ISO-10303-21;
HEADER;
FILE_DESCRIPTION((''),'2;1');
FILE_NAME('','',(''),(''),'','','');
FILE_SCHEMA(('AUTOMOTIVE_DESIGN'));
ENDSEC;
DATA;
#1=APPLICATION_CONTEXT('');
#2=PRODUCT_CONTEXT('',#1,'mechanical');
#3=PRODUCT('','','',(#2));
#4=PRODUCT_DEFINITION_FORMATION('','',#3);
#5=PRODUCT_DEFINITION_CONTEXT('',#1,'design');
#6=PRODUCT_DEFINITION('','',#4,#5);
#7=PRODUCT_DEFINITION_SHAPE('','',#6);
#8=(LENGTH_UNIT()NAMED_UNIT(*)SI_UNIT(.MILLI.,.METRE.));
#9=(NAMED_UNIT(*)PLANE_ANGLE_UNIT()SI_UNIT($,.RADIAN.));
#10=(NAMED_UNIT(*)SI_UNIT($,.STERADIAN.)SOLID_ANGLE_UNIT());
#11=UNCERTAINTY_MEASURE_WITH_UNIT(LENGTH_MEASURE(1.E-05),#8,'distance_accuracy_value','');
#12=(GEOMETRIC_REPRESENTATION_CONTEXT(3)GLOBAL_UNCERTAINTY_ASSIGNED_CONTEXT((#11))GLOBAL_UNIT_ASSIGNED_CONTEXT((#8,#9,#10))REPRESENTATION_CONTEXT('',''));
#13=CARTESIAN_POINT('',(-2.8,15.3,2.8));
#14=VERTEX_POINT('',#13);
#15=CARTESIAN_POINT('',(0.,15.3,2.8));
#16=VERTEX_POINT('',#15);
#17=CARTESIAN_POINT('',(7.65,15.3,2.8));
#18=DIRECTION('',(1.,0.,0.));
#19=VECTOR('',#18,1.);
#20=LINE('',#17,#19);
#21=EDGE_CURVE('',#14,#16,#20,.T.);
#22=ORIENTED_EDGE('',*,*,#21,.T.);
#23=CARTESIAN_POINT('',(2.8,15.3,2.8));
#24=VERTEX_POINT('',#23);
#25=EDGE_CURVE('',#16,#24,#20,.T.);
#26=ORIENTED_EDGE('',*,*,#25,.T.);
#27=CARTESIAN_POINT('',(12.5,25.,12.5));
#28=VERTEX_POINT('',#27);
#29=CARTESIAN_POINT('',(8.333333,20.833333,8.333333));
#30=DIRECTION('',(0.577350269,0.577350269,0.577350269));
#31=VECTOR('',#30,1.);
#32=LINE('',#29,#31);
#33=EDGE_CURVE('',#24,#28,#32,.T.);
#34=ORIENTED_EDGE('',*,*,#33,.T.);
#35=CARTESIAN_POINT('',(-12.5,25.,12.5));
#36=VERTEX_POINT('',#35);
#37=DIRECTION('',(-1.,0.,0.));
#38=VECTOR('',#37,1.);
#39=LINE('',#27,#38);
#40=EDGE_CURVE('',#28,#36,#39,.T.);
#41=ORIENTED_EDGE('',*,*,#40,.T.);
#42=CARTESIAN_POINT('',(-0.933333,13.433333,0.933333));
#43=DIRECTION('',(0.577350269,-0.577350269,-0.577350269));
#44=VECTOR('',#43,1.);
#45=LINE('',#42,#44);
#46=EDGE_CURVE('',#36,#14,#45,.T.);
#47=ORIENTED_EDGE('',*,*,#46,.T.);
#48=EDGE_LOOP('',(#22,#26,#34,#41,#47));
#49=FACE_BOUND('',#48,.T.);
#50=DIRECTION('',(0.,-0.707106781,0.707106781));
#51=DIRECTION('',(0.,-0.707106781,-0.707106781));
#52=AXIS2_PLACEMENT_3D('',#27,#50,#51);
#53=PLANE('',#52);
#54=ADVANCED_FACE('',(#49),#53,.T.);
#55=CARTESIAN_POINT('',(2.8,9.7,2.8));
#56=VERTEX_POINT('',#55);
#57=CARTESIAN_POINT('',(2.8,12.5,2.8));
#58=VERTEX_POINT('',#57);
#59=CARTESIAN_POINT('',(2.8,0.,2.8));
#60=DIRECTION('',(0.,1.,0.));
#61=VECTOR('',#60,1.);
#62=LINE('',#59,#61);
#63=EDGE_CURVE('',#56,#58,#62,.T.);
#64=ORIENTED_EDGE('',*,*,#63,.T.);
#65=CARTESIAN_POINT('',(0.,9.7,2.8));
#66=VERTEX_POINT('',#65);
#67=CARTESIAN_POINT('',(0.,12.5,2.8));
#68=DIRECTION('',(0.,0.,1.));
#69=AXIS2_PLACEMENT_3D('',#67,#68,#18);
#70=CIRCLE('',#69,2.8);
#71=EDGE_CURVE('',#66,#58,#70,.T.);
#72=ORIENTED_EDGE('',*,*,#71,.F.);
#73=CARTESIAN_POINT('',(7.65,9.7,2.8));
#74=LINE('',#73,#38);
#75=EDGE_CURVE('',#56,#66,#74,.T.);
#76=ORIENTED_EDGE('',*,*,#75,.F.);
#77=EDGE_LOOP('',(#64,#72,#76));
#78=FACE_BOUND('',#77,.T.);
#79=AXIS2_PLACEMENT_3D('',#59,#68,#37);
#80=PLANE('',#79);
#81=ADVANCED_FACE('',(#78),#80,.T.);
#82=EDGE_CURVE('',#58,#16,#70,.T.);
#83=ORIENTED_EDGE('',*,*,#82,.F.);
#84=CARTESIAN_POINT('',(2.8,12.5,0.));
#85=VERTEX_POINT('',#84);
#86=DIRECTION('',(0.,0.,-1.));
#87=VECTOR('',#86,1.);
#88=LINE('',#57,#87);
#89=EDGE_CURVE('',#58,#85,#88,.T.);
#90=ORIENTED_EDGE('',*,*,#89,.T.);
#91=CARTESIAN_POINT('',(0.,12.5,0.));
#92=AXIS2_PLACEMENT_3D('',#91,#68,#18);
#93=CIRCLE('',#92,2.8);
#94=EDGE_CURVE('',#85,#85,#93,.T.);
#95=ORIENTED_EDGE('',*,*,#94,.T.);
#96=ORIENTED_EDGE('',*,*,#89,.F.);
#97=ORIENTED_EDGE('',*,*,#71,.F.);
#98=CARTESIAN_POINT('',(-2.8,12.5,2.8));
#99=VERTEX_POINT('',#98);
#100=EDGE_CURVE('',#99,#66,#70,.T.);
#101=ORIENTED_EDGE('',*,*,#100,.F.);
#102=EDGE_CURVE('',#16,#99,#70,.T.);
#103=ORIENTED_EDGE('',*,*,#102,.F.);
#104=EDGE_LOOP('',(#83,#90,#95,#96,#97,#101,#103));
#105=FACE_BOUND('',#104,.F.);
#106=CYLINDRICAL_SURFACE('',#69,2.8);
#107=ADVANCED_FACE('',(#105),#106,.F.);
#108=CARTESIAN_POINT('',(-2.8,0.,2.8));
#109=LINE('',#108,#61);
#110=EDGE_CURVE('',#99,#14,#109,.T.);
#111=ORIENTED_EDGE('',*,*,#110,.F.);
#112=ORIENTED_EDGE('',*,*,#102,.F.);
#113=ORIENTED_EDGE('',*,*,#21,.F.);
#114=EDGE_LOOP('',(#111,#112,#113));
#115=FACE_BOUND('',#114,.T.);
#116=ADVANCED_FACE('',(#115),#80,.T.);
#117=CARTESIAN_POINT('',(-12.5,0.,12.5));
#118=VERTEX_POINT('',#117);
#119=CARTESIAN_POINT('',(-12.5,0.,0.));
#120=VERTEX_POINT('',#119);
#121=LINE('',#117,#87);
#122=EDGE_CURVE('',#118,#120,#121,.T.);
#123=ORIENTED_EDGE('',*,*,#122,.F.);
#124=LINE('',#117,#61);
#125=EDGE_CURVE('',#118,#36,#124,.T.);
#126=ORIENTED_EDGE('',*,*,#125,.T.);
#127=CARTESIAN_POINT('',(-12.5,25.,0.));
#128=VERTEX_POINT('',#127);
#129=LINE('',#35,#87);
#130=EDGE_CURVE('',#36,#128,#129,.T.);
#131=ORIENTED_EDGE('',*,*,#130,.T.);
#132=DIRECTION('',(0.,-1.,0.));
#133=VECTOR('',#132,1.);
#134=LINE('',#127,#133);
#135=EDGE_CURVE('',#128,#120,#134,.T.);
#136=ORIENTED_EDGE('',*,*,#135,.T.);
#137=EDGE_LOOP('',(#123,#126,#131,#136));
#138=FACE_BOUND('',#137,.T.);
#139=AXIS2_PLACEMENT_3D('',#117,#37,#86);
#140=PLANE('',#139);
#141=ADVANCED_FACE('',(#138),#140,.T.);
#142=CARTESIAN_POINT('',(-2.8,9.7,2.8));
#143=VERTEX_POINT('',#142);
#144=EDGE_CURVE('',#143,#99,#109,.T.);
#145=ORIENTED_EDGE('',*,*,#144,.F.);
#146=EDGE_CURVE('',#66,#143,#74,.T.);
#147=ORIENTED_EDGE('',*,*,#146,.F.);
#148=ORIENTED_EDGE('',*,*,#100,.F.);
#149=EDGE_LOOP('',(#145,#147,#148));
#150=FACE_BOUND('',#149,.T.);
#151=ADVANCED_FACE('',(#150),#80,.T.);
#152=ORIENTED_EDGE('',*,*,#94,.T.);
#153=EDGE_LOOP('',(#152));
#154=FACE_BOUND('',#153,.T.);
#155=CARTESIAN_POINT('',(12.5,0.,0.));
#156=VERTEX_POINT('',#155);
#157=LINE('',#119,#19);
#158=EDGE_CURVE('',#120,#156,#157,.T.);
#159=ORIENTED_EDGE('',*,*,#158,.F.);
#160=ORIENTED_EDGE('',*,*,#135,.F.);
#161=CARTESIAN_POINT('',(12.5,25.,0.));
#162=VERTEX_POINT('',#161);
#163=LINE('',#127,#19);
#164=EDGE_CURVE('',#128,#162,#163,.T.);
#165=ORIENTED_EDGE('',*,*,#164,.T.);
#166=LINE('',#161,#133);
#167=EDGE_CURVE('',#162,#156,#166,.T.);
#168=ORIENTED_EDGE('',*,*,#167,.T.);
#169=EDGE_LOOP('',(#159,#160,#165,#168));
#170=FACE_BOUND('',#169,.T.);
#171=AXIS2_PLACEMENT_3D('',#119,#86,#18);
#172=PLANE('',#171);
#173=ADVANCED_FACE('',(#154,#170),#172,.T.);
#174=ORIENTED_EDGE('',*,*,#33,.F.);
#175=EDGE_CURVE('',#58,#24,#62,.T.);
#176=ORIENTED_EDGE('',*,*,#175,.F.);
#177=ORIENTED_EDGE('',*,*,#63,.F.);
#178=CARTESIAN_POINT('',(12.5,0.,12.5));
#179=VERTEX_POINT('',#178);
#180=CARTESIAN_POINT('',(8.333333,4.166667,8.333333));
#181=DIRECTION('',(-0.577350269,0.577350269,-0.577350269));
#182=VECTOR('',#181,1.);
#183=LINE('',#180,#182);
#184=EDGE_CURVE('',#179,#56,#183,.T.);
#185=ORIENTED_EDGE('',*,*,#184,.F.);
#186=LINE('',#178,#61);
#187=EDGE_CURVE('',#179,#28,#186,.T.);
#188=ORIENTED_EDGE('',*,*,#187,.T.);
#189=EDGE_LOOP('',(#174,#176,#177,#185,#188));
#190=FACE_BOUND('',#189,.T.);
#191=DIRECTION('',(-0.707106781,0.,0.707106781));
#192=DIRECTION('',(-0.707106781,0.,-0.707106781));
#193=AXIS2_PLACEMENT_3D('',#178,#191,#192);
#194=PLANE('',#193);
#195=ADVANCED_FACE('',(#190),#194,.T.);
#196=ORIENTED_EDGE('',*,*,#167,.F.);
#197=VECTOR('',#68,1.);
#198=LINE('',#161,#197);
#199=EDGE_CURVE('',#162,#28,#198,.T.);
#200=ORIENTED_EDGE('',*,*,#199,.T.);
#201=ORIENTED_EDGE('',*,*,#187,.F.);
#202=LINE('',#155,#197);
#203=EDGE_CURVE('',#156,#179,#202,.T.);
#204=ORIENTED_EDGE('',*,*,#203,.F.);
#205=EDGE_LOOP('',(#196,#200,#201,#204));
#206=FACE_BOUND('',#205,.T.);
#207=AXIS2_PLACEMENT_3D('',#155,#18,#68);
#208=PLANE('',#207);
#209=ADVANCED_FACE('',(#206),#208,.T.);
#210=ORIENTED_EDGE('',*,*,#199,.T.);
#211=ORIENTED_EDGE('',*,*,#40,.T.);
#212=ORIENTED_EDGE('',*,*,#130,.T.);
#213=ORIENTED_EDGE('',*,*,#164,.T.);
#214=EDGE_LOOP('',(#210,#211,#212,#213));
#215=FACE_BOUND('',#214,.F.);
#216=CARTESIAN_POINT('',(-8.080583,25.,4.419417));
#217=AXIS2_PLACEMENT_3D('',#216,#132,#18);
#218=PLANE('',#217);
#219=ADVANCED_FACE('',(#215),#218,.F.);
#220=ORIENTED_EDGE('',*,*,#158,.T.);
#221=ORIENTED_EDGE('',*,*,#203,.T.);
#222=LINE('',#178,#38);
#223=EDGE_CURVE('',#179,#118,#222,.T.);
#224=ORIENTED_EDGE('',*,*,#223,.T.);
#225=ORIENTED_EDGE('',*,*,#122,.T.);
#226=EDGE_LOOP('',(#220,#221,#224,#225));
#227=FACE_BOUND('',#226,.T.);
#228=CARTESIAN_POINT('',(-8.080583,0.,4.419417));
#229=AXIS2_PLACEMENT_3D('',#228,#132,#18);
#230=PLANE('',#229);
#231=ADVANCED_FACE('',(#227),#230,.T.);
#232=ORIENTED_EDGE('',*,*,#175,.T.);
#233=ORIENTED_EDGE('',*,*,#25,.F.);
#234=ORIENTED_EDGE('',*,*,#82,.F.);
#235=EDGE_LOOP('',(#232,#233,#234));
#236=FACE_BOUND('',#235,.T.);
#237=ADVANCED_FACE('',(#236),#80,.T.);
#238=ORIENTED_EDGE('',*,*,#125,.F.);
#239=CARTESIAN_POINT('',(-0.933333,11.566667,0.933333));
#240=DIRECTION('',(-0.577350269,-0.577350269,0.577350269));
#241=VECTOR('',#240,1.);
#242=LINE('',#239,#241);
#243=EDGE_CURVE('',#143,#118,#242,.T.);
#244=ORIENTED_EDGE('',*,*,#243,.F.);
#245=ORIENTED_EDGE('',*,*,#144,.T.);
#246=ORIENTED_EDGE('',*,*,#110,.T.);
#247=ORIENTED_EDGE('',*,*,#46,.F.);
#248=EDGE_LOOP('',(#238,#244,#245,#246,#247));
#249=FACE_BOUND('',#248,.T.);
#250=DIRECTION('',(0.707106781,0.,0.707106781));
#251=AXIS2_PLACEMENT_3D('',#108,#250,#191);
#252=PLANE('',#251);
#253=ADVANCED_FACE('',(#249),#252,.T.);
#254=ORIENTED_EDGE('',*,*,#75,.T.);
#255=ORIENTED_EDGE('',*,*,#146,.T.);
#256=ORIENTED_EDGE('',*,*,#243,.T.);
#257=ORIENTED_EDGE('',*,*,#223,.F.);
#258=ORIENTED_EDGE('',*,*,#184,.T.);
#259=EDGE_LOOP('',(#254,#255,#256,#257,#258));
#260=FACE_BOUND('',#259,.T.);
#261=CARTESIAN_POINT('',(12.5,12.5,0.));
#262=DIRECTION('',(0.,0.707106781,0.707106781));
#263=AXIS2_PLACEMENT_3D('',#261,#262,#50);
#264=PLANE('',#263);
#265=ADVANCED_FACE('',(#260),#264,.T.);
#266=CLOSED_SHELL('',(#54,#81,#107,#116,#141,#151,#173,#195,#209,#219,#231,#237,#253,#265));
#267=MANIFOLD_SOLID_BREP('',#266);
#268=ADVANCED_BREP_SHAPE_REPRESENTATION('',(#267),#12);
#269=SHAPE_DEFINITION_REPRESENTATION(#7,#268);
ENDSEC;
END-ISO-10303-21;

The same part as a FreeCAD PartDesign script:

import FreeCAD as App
import Part
import Sketcher
Q = App.Units.Quantity


def add_polygon(sketch, points):
    """Adds a closed chain of lines whose ends are joined by coincident constraints."""
    first, n = sketch.GeometryCount, len(points)
    for a, b in zip(points, points[1:] + points[:1]):
        sketch.addGeometry(Part.LineSegment(App.Vector(*a, 0), App.Vector(*b, 0)), False)
    for i in range(n):
        sketch.addConstraint(Sketcher.Constraint("Coincident", first + i, 2, first + (i + 1) % n, 1))

doc = App.newDocument("Part")
body = doc.addObject("PartDesign::Body", "Body")

sketch1 = doc.addObject("Sketcher::SketchObject", "Sketch")
body.addObject(sketch1)
sketch1.AttachmentSupport = (doc.XZ_Plane, [""])
sketch1.MapMode = "FlatFace"
add_polygon(sketch1, [(-12, 12), (-12, 0), (12, 0), (12, 12), (3, 3), (-3, 3)])
sketch1.addConstraint(Sketcher.Constraint("Vertical", 0))
sketch1.addConstraint(Sketcher.Constraint("Horizontal", 1))
sketch1.addConstraint(Sketcher.Constraint("Vertical", 2))
sketch1.addConstraint(Sketcher.Constraint("Horizontal", 4))
sketch1.addConstraint(Sketcher.Constraint("Symmetric", 0, 2, 1, 2, -1, 1))
sketch1.addConstraint(Sketcher.Constraint("Perpendicular", 3, 5))
sketch1.addConstraint(Sketcher.Constraint("Horizontal", 2, 2, 5, 2))
sketch1.addConstraint(Sketcher.Constraint("Equal", 3, 5))
sketch1.addConstraint(Sketcher.Constraint("DistanceX", 1, 1, 1, 2, Q("25 mm")))
sketch1.addConstraint(Sketcher.Constraint("DistanceX", 4, 2, 4, 1, Q("5.6 mm")))
sketch1.addConstraint(Sketcher.Constraint("DistanceY", 0, 2, 0, 1, Q("12.5 mm")))
pad1 = doc.addObject("PartDesign::Pad", "Pad")
body.addObject(pad1)
pad1.Profile = sketch1
pad1.Length = 25
pad1.Reversed = True

sketch2 = doc.addObject("Sketcher::SketchObject", "Sketch001")
body.addObject(sketch2)
sketch2.AttachmentSupport = (doc.YZ_Plane, [""])
sketch2.MapMode = "FlatFace"
sketch2.AttachmentOffset = App.Placement(App.Vector(0, 0, 12.5), App.Rotation())
add_polygon(sketch2, [(0, 0), (12, 0), (0, 12)])
add_polygon(sketch2, [(25, 12), (12, 0), (25, 0)])
sketch2.addConstraint(Sketcher.Constraint("Horizontal", 0))
sketch2.addConstraint(Sketcher.Constraint("Vertical", 2))
sketch2.addConstraint(Sketcher.Constraint("Horizontal", 4))
sketch2.addConstraint(Sketcher.Constraint("Vertical", 5))
sketch2.addConstraint(Sketcher.Constraint("Coincident", 2, 2, -1, 1))
sketch2.addConstraint(Sketcher.Constraint("Coincident", 3, 2, 0, 2))
sketch2.addConstraint(Sketcher.Constraint("Perpendicular", 1, 3))
sketch2.addConstraint(Sketcher.Constraint("Horizontal", 1, 2, 5, 2))
sketch2.addConstraint(Sketcher.Constraint("Equal", 0, 4))
sketch2.addConstraint(Sketcher.Constraint("DistanceX", 0, 1, 0, 2, Q("12.5 mm")))
pad2 = doc.addObject("PartDesign::Pad", "Pad001")
body.addObject(pad2)
pad2.Profile = sketch2
pad2.Length = 25
pad2.Reversed = True

sketch3 = doc.addObject("Sketcher::SketchObject", "Sketch002")
body.addObject(sketch3)
sketch3.AttachmentSupport = (doc.XY_Plane, [""])
sketch3.MapMode = "FlatFace"
sketch3.AttachmentOffset = App.Placement(App.Vector(0, 0, 2.8), App.Rotation())
sketch3.addGeometry(Part.Circle(App.Vector(0, 12.5, 0), App.Vector(0, 0, 1), 2.8), False)
sketch3.addConstraint(Sketcher.Constraint("PointOnObject", 0, 3, -2))
sketch3.addConstraint(Sketcher.Constraint("Diameter", 0, Q("5.6 mm")))
sketch3.addConstraint(Sketcher.Constraint("DistanceY", -1, 1, 0, 3, Q("12.5 mm")))
pocket1 = doc.addObject("PartDesign::Pocket", "Pocket")
body.addObject(pocket1)
pocket1.Profile = sketch3
pocket1.Type = "ThroughAll"

doc.recompute()
